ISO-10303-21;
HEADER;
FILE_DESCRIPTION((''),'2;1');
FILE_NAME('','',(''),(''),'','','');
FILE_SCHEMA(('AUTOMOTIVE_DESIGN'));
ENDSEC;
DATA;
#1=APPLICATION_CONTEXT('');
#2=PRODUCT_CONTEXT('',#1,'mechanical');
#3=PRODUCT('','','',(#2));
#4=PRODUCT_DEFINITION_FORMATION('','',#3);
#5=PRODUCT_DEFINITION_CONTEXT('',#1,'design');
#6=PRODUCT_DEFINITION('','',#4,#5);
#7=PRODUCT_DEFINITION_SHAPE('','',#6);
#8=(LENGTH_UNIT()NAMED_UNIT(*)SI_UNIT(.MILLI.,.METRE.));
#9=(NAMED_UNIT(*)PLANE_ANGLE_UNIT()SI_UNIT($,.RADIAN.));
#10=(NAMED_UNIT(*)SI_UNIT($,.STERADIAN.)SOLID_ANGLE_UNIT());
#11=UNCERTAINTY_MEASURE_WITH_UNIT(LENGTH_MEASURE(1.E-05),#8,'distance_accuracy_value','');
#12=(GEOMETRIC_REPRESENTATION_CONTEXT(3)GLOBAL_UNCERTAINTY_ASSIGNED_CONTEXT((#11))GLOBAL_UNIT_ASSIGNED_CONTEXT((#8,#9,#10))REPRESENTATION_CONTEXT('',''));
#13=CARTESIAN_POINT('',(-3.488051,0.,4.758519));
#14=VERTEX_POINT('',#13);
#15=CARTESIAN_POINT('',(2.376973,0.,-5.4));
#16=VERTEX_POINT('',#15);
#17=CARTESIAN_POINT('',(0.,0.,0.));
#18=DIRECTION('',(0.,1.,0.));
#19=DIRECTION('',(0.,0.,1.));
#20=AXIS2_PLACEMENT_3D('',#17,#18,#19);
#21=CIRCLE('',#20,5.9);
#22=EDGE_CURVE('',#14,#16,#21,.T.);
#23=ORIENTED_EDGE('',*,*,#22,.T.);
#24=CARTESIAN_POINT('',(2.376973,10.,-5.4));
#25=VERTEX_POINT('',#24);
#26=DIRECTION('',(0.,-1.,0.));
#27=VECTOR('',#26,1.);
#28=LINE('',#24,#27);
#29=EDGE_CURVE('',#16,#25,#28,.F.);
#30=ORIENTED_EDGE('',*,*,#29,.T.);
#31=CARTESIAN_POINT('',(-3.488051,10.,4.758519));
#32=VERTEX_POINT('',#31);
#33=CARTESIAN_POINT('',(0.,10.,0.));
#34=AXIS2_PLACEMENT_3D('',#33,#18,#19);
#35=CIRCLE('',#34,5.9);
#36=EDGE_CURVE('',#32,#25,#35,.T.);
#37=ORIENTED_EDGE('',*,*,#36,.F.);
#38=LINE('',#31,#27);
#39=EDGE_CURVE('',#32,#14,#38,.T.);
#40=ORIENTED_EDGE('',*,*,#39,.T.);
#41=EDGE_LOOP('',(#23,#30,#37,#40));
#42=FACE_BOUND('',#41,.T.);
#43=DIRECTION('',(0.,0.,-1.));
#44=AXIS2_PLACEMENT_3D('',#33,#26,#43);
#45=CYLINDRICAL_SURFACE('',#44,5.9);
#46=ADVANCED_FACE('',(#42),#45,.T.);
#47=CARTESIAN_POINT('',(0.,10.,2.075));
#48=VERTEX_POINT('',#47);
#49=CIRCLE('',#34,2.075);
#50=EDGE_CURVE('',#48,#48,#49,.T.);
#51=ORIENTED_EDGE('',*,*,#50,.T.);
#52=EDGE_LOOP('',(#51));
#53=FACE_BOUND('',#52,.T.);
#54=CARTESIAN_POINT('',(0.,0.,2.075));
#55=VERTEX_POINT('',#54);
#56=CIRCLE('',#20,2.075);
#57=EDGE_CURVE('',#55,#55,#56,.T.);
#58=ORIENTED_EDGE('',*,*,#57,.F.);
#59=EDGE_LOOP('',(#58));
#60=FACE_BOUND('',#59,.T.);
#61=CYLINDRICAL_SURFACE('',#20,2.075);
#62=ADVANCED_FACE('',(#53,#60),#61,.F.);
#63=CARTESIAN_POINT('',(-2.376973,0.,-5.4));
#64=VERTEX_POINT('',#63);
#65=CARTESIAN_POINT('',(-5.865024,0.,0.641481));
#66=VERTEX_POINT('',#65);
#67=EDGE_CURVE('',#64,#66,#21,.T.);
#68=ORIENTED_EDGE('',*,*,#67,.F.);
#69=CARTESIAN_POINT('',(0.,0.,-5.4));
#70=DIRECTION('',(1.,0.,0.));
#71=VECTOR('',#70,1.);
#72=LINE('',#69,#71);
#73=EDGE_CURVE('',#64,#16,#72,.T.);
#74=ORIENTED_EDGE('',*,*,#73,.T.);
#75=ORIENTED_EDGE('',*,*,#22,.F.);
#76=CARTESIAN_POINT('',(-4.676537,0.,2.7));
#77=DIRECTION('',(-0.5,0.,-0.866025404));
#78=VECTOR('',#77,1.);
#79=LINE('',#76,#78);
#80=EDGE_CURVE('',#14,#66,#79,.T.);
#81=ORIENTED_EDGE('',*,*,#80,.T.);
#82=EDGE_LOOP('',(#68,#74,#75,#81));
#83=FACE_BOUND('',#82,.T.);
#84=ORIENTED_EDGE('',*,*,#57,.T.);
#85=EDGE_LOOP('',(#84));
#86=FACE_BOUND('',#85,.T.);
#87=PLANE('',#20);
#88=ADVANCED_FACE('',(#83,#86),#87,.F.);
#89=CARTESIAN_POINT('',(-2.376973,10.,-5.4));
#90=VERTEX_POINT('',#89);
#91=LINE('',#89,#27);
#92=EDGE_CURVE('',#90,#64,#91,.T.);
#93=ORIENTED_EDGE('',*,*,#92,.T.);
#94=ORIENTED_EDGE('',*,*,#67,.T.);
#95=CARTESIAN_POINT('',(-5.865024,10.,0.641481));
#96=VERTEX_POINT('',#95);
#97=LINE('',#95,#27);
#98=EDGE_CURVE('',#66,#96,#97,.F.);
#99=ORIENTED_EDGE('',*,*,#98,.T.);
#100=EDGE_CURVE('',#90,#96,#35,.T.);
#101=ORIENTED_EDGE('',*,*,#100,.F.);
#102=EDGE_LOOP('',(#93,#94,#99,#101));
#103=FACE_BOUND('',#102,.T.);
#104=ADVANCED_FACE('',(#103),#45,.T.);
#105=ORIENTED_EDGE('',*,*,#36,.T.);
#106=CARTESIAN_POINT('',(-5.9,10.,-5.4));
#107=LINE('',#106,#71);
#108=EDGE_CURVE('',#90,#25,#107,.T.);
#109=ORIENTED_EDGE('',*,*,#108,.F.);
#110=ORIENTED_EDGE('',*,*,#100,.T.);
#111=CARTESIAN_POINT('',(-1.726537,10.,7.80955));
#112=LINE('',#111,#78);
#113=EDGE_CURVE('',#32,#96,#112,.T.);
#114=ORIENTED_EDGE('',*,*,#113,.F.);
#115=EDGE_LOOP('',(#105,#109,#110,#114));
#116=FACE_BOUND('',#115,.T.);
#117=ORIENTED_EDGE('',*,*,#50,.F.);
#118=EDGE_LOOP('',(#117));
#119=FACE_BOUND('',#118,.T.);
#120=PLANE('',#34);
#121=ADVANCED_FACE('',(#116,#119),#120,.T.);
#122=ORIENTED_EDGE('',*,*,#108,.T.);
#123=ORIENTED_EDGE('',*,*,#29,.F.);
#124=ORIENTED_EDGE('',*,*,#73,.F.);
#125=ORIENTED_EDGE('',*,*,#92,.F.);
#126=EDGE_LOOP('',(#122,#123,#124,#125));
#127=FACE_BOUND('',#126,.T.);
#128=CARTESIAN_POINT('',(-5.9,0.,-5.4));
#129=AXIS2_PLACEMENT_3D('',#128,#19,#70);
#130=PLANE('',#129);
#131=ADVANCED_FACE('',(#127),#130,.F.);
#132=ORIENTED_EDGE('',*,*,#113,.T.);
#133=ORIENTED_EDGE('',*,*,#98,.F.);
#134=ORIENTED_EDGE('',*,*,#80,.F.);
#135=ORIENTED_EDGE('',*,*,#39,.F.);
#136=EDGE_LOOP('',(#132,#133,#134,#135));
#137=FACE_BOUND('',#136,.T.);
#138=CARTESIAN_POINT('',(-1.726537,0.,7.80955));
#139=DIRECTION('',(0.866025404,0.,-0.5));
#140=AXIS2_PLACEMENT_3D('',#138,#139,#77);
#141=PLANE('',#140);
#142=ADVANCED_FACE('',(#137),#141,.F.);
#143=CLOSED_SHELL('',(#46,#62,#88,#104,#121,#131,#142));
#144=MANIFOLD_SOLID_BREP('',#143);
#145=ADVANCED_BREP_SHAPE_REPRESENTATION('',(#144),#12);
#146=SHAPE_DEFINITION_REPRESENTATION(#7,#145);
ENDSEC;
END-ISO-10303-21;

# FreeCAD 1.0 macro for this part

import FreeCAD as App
import Part
import Sketcher

V = App.Vector
Q = App.Units.Quantity

doc = App.newDocument("Part")
body = doc.addObject("PartDesign::Body", "Body")

sketch1 = doc.addObject("Sketcher::SketchObject", "Sketch")
body.addObject(sketch1)
sketch1.AttachmentSupport = (doc.XZ_Plane, [""])
sketch1.MapMode = "FlatFace"
sketch1.addGeometry(Part.Circle(V(0, 0, 0), V(0, 0, 1), 6), False)
sketch1.addConstraint(Sketcher.Constraint("Coincident", 0, 3, -1, 1))
sketch1.addConstraint(Sketcher.Constraint("Diameter", 0, Q("11.8 mm")))
pad1 = doc.addObject("PartDesign::Pad", "Pad")
body.addObject(pad1)
pad1.Profile = sketch1
pad1.Length = 10
pad1.Reversed = True

sketch2 = doc.addObject("Sketcher::SketchObject", "Sketch001")
body.addObject(sketch2)
sketch2.AttachmentSupport = (doc.XZ_Plane, [""])
sketch2.MapMode = "FlatFace"
sketch2.AttachmentOffset = App.Placement(V(0, 0, -10), App.Rotation())
sketch2.addGeometry(Part.Circle(V(0, 0, 0), V(0, 0, 1), 2.1), False)
sketch2.addConstraint(Sketcher.Constraint("Coincident", 0, 3, -1, 1))
sketch2.addConstraint(Sketcher.Constraint("Diameter", 0, Q("4.15 mm")))
pocket1 = doc.addObject("PartDesign::Pocket", "Pocket")
body.addObject(pocket1)
pocket1.Profile = sketch2
pocket1.Type = "ThroughAll"
pocket1.Reversed = True

sketch3 = doc.addObject("Sketcher::SketchObject", "Sketch002")
body.addObject(sketch3)
sketch3.AttachmentSupport = (doc.XZ_Plane, [""])
sketch3.MapMode = "FlatFace"
sketch3.AttachmentOffset = App.Placement(V(0, 0, -10), App.Rotation())
sketch3.addGeometry(Part.LineSegment(V(-5.9, -6.4, 0), V(-5.9, -5.4, 0)), False)
sketch3.addGeometry(Part.LineSegment(V(-5.9, -5.4, 0), V(5.9, -5.4, 0)), False)
sketch3.addGeometry(Part.LineSegment(V(5.9, -5.4, 0), V(5.9, -6.4, 0)), False)
sketch3.addGeometry(Part.LineSegment(V(5.9, -6.4, 0), V(-5.9, -6.4, 0)), False)
sketch3.addConstraint(Sketcher.Constraint("Coincident", 0, 2, 1, 1))
sketch3.addConstraint(Sketcher.Constraint("Coincident", 1, 2, 2, 1))
sketch3.addConstraint(Sketcher.Constraint("Coincident", 2, 2, 3, 1))
sketch3.addConstraint(Sketcher.Constraint("Coincident", 3, 2, 0, 1))
sketch3.addConstraint(Sketcher.Constraint("Vertical", 0))
sketch3.addConstraint(Sketcher.Constraint("Horizontal", 1))
sketch3.addConstraint(Sketcher.Constraint("Vertical", 2))
sketch3.addConstraint(Sketcher.Constraint("Horizontal", 3))
sketch3.addConstraint(Sketcher.Constraint("DistanceY", 0, 1, 0, 2, Q("1 mm")))
sketch3.addConstraint(Sketcher.Constraint("DistanceX", 1, 1, 1, 2, Q("11.8 mm")))
sketch3.addConstraint(Sketcher.Constraint("DistanceX", 0, 2, -1, 1, Q("5.9 mm")))
sketch3.addConstraint(Sketcher.Constraint("DistanceY", 0, 2, -1, 1, Q("5.4 mm")))
pocket2 = doc.addObject("PartDesign::Pocket", "Pocket001")
body.addObject(pocket2)
pocket2.Profile = sketch3
pocket2.Type = "ThroughAll"
pocket2.Reversed = True
doc.recompute()

polarpattern = doc.addObject("PartDesign::PolarPattern", "PolarPattern")
body.addObject(polarpattern)
polarpattern.Originals = [pocket2]
polarpattern.Axis = (doc.Y_Axis, [""])
polarpattern.Angle = 120
polarpattern.Occurrences = 2
body.Tip = polarpattern

doc.recompute()
